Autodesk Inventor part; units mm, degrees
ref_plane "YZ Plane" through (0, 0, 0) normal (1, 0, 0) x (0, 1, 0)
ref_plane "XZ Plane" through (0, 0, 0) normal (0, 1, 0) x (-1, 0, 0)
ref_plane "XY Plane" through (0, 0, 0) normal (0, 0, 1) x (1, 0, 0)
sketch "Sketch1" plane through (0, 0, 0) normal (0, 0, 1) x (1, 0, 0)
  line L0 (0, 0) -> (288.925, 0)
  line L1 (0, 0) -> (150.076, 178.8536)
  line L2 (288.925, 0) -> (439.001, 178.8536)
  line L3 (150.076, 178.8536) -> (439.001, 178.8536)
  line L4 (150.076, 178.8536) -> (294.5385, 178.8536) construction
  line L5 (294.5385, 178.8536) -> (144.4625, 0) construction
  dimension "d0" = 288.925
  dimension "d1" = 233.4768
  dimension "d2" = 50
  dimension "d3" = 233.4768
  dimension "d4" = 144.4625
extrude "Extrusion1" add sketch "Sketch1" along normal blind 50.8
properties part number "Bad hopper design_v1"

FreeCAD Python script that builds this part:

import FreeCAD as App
import Part
import Sketcher
from FreeCAD import Vector
Q = App.Units.Quantity


def add_polygon(sketch, points):
    """Adds a closed chain of lines whose ends are joined by coincident constraints."""
    first, n = sketch.GeometryCount, len(points)
    for a, b in zip(points, points[1:] + points[:1]):
        sketch.addGeometry(Part.LineSegment(App.Vector(*a, 0), App.Vector(*b, 0)), False)
    for i in range(n):
        sketch.addConstraint(Sketcher.Constraint("Coincident", first + i, 2, first + (i + 1) % n, 1))

doc = App.newDocument("Part")
params = doc.addObject("Spreadsheet::Sheet", "Params")
for row, (alias, value) in enumerate([
    ("sketch1_width", "11.375 in"),
    ("sketch1_length", "9.192 in"),
    ("pad1_length", "2 in"),
], start=1):
    params.set(f"A{row}", alias)
    params.set(f"B{row}", "=" + value)
    params.setAlias(f"B{row}", alias)

body = doc.addObject("PartDesign::Body", "Body")

# Sketch on XY plane
sketch1 = body.newObject("Sketcher::SketchObject", "Sketch")
sketch1.AttachmentSupport = (doc.getObject("XY_Plane"), [""])
sketch1.MapMode = "FlatFace"
add_polygon(sketch1, [(150, 179), (0, 0), (289, 0), (439, 179)])  # lines 0-3
sketch1.addConstraint([
    Sketcher.Constraint("Horizontal", 1),
    Sketcher.Constraint("Horizontal", 3),
    Sketcher.Constraint("Coincident", 0, 2, -1, 1),
    Sketcher.Constraint("Parallel", 0, 2),
    Sketcher.Constraint("Angle", 2, Q("50 deg")),
    Sketcher.Constraint("DistanceX", 1, 1, 1, 2, Q("11.375 in")),
    Sketcher.Constraint("Distance", 0, Q("9.192 in")),
])
sketch1.setExpression("Constraints[9]", "Params.sketch1_width")
sketch1.setExpression("Constraints[10]", "Params.sketch1_length")
pad1 = body.newObject("PartDesign::Pad", "Pad")
pad1.Profile = sketch1
pad1.setExpression("Length", "Params.pad1_length")

doc.recompute()
